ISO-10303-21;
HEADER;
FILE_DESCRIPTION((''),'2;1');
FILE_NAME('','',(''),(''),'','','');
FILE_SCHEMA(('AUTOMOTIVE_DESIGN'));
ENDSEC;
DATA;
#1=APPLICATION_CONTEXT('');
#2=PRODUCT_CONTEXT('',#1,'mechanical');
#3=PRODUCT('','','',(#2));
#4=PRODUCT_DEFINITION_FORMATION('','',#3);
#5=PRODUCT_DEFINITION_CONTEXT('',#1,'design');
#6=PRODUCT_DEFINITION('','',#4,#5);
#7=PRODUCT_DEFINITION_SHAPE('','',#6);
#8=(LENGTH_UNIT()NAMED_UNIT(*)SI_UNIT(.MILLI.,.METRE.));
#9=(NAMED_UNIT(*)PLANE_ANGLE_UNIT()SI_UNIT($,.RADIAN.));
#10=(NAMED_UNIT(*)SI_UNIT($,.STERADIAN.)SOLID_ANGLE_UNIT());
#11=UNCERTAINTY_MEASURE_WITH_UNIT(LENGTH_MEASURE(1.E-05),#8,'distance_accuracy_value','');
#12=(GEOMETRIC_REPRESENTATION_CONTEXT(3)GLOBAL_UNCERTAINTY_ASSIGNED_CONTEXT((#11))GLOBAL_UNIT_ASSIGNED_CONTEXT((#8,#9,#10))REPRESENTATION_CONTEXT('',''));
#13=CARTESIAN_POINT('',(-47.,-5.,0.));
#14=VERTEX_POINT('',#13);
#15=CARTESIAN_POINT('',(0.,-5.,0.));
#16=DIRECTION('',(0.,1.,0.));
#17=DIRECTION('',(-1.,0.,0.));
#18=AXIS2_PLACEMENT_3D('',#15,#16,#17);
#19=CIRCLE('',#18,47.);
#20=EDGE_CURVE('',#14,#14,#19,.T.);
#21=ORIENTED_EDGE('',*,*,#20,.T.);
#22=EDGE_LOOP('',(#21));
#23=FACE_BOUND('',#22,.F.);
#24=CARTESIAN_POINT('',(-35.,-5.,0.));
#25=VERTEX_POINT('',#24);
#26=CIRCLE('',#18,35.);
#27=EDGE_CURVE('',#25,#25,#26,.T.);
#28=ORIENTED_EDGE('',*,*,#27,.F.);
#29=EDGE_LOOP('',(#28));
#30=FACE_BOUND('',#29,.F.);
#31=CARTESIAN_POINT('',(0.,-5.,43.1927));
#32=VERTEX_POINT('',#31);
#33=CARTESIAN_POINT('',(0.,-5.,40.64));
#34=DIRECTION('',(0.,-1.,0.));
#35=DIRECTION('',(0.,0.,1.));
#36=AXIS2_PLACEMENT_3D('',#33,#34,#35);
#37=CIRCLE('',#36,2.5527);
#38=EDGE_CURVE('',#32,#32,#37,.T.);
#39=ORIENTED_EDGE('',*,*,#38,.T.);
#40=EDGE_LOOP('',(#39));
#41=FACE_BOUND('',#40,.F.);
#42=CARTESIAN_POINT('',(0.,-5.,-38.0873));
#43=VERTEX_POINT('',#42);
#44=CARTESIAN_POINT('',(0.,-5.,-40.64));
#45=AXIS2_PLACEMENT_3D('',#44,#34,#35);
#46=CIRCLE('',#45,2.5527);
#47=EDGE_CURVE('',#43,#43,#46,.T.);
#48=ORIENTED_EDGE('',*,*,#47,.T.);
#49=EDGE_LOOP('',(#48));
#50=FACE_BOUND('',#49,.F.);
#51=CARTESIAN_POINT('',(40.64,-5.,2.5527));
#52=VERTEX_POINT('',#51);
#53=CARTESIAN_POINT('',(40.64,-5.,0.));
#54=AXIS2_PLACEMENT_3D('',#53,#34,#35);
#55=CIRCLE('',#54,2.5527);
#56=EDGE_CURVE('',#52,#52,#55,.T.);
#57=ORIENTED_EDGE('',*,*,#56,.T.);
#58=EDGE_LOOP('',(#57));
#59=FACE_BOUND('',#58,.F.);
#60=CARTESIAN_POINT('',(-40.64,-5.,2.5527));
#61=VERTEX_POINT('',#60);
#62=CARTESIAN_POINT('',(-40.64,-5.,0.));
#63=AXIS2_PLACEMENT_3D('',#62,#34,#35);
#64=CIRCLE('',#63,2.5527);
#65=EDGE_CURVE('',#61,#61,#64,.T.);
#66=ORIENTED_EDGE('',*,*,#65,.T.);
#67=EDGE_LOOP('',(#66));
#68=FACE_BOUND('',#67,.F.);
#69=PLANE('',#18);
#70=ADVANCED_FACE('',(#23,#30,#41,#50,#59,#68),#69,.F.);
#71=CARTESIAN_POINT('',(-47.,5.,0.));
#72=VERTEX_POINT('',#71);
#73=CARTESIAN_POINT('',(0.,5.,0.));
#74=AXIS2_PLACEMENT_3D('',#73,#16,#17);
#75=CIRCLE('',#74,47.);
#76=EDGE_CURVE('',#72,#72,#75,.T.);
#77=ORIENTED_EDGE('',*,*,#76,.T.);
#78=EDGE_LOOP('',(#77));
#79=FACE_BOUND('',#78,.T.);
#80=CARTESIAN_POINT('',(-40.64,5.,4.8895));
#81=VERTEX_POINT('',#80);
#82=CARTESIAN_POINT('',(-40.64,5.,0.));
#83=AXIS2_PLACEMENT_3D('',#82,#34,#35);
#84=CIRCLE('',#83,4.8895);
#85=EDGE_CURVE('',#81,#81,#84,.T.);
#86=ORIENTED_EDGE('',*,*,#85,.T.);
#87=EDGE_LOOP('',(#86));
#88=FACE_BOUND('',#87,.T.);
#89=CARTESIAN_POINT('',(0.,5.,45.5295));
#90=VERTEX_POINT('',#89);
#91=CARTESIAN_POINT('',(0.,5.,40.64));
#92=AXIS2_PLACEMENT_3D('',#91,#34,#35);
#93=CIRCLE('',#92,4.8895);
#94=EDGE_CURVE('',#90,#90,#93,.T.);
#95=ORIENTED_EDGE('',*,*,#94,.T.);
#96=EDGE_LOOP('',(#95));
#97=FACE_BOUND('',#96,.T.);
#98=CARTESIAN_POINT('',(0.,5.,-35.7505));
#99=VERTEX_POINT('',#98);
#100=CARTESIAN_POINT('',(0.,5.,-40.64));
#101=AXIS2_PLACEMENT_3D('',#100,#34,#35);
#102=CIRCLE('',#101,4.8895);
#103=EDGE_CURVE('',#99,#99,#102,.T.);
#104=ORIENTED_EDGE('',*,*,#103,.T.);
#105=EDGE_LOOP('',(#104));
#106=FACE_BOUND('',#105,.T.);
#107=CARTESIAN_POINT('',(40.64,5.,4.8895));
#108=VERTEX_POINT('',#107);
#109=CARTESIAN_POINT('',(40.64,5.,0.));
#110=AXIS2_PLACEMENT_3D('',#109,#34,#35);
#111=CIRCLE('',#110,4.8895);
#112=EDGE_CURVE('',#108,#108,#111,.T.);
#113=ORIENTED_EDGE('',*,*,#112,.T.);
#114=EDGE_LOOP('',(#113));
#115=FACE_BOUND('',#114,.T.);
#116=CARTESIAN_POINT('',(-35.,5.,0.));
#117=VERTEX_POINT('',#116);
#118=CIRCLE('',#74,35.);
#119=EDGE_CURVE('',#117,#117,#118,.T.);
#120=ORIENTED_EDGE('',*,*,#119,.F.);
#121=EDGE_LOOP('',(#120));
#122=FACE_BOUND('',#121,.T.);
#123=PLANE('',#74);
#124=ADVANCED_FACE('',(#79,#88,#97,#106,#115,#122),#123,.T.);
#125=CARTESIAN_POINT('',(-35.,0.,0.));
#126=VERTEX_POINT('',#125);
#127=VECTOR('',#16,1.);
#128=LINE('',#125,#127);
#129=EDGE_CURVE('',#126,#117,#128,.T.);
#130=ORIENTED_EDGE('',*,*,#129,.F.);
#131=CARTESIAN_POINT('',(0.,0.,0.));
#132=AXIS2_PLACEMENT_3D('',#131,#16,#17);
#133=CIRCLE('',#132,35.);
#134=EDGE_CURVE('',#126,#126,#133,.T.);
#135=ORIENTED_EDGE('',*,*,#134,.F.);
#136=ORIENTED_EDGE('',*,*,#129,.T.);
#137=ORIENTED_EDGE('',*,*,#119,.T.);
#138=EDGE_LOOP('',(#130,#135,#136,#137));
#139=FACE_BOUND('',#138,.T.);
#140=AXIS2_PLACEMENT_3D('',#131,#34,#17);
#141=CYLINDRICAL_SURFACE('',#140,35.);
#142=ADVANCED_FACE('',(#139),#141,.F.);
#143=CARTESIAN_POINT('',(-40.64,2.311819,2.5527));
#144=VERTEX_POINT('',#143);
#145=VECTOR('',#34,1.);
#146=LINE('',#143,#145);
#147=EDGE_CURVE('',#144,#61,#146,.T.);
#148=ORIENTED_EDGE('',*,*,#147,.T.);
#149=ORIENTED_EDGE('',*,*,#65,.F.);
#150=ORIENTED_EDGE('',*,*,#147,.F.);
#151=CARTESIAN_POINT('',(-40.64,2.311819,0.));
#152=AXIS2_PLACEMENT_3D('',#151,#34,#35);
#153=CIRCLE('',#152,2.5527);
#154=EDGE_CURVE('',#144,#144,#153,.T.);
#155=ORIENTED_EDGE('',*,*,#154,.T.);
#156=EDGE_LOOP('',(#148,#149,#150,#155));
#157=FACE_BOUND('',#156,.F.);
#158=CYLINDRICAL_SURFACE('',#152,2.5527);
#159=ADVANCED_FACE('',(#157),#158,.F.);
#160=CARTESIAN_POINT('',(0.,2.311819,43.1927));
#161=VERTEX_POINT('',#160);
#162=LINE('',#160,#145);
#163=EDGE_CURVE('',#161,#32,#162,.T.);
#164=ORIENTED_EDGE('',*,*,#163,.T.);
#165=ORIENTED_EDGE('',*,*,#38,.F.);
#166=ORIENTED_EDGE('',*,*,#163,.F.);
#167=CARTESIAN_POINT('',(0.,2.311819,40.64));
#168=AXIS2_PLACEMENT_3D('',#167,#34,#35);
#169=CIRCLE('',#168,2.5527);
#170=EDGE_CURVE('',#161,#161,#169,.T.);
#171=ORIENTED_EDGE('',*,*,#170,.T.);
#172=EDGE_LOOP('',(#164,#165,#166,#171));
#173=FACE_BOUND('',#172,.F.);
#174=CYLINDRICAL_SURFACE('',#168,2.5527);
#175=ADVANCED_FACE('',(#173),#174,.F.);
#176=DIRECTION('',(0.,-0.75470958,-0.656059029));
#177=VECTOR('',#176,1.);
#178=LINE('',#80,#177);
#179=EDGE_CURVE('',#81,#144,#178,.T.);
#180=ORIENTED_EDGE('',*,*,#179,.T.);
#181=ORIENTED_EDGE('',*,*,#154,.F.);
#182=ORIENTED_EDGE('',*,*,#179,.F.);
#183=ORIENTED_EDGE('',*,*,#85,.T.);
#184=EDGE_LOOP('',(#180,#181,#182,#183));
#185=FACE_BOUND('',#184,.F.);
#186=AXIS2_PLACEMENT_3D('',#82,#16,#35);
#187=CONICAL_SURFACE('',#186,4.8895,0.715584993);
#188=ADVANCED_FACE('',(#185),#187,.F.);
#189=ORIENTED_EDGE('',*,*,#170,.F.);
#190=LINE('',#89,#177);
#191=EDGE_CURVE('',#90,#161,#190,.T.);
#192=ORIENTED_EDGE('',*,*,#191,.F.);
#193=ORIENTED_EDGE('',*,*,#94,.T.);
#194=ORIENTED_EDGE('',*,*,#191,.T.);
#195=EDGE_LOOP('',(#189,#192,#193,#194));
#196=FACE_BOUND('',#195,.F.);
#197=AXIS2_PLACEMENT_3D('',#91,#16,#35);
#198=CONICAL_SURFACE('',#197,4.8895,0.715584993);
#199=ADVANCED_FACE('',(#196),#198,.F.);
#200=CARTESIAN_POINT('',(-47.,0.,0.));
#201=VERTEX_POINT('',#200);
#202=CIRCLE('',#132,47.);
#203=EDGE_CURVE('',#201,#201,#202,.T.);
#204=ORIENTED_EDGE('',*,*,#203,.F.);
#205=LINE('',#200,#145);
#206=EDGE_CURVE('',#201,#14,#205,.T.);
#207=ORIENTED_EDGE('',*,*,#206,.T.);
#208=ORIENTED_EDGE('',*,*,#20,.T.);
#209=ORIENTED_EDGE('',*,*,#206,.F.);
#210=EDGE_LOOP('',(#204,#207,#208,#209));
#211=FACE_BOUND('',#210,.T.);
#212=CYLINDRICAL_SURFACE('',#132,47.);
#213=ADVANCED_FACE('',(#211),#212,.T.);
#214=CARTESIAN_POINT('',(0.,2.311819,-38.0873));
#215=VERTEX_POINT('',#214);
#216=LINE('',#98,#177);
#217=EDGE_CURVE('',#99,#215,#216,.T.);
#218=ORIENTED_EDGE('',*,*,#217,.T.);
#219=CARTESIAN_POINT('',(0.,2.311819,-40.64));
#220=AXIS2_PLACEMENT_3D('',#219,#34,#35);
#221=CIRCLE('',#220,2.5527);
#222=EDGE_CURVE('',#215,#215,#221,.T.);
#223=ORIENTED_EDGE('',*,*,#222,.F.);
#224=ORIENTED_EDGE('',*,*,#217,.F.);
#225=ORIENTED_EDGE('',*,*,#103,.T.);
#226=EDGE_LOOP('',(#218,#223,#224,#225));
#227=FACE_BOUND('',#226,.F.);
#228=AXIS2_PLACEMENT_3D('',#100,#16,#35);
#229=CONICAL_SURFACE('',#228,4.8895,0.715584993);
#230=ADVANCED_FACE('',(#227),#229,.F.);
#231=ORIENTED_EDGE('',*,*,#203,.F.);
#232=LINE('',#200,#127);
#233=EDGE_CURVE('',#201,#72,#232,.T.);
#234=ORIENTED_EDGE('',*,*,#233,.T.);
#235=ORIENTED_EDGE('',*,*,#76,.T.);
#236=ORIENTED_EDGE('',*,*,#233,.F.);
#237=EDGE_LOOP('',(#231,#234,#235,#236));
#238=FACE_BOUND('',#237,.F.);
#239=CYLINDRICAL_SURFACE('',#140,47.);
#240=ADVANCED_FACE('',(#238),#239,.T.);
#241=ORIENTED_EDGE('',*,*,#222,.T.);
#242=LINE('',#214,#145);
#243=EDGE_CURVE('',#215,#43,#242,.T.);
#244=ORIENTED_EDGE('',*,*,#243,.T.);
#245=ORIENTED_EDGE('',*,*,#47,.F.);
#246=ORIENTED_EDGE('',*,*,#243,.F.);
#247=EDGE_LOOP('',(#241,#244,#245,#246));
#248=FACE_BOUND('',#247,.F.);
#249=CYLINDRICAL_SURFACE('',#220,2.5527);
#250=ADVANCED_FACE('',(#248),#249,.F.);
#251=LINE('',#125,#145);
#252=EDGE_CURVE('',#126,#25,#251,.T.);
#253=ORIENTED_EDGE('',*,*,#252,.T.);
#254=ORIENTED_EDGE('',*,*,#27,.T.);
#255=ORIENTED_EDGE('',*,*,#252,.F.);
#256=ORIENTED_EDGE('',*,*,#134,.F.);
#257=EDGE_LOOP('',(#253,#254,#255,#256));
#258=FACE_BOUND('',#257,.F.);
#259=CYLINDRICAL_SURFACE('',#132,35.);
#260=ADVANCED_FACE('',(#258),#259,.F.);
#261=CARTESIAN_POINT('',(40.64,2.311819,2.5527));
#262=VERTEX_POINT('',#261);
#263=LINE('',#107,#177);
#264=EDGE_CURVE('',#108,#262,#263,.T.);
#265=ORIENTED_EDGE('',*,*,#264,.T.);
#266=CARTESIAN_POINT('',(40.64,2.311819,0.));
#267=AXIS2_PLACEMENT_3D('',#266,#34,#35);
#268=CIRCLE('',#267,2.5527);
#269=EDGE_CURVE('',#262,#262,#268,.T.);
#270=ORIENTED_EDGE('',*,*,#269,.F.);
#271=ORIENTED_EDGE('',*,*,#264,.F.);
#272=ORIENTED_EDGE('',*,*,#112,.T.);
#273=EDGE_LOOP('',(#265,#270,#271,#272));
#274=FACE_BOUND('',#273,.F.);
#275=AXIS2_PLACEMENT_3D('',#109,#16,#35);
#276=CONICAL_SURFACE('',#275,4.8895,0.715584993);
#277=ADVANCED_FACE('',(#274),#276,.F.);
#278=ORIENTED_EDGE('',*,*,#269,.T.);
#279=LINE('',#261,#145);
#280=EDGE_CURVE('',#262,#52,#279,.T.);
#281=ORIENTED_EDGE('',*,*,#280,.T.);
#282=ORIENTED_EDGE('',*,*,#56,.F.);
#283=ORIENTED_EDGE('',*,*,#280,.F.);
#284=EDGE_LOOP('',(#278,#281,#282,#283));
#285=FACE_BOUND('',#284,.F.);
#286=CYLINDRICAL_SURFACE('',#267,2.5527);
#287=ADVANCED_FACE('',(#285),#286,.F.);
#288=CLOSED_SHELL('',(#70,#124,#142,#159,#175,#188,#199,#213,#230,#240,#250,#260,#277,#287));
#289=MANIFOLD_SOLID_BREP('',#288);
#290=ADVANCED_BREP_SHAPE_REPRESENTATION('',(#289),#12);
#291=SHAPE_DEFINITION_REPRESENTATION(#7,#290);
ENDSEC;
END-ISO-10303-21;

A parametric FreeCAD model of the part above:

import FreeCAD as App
import Part
import Sketcher

doc = App.newDocument("Part")
body = doc.addObject("PartDesign::Body", "Body")

# Sketch on XZ plane
sketch1 = body.newObject("Sketcher::SketchObject", "Sketch")
sketch1.AttachmentSupport = (doc.getObject("XZ_Plane"), [""])
sketch1.MapMode = "FlatFace"
sketch1.addGeometry([
    Part.Circle(App.Vector(0, 0, 0), App.Vector(0, 0, 1), 47),
    Part.Circle(App.Vector(0, 0, 0), App.Vector(0, 0, 1), 35),
], False)
sketch1.addConstraint([
    Sketcher.Constraint("Coincident", 0, 3, -1, 1),
    Sketcher.Constraint("Coincident", 1, 3, -1, 1),
    Sketcher.Constraint("Diameter", 1, 70.0),
    Sketcher.Constraint("Diameter", 0, 94.0),
])
pad1 = body.newObject("PartDesign::Pad", "Pad")
pad1.Profile = sketch1
pad1.Length = 10
pad1.Midplane = True

# Sketch on XZ plane
sketch2 = body.newObject("Sketcher::SketchObject", "Sketch001")
sketch2.AttachmentSupport = (doc.getObject("XZ_Plane"), [""])
sketch2.MapMode = "FlatFace"
sketch2.AttachmentOffset = App.Placement(App.Vector(0, 0, -5), App.Rotation())
sketch2.addGeometry([
    Part.Circle(App.Vector(0, -40.6, 0), App.Vector(0, 0, 1), 2.6),
    Part.Circle(App.Vector(-40.6, 0, 0), App.Vector(0, 0, 1), 2.6),
    Part.Circle(App.Vector(40.6, 0, 0), App.Vector(0, 0, 1), 2.6),
    Part.Circle(App.Vector(0, 40.6, 0), App.Vector(0, 0, 1), 2.6),
], False)
sketch2.addConstraint([
    Sketcher.Constraint("Equal", 0, 1),
    Sketcher.Constraint("Equal", 1, 2),
    Sketcher.Constraint("Equal", 2, 3),
    Sketcher.Constraint("Symmetric", 1, 3, 2, 3, -1, 1),
    Sketcher.Constraint("Symmetric", 0, 3, 3, 3, -1, 1),
    Sketcher.Constraint("PointOnObject", 0, 3, -2),
    Sketcher.Constraint("PointOnObject", 1, 3, -1),
    Sketcher.Constraint("Diameter", 0, 5.1054),
    Sketcher.Constraint("DistanceY", 0, 3, -1, 1, 40.64),
    Sketcher.Constraint("DistanceX", 1, 3, -1, 1, 40.64),
])
doc.recompute()
hole = body.newObject("PartDesign::Hole", "Hole")
hole.Profile = sketch2
hole.ThreadType = "None"
hole.Diameter = 5.1054
hole.DepthType = "ThroughAll"
hole.HoleCutType = "Countersink"
hole.HoleCutDiameter = 9.779
hole.HoleCutCountersinkAngle = 82
hole.Reversed = True

doc.recompute()
